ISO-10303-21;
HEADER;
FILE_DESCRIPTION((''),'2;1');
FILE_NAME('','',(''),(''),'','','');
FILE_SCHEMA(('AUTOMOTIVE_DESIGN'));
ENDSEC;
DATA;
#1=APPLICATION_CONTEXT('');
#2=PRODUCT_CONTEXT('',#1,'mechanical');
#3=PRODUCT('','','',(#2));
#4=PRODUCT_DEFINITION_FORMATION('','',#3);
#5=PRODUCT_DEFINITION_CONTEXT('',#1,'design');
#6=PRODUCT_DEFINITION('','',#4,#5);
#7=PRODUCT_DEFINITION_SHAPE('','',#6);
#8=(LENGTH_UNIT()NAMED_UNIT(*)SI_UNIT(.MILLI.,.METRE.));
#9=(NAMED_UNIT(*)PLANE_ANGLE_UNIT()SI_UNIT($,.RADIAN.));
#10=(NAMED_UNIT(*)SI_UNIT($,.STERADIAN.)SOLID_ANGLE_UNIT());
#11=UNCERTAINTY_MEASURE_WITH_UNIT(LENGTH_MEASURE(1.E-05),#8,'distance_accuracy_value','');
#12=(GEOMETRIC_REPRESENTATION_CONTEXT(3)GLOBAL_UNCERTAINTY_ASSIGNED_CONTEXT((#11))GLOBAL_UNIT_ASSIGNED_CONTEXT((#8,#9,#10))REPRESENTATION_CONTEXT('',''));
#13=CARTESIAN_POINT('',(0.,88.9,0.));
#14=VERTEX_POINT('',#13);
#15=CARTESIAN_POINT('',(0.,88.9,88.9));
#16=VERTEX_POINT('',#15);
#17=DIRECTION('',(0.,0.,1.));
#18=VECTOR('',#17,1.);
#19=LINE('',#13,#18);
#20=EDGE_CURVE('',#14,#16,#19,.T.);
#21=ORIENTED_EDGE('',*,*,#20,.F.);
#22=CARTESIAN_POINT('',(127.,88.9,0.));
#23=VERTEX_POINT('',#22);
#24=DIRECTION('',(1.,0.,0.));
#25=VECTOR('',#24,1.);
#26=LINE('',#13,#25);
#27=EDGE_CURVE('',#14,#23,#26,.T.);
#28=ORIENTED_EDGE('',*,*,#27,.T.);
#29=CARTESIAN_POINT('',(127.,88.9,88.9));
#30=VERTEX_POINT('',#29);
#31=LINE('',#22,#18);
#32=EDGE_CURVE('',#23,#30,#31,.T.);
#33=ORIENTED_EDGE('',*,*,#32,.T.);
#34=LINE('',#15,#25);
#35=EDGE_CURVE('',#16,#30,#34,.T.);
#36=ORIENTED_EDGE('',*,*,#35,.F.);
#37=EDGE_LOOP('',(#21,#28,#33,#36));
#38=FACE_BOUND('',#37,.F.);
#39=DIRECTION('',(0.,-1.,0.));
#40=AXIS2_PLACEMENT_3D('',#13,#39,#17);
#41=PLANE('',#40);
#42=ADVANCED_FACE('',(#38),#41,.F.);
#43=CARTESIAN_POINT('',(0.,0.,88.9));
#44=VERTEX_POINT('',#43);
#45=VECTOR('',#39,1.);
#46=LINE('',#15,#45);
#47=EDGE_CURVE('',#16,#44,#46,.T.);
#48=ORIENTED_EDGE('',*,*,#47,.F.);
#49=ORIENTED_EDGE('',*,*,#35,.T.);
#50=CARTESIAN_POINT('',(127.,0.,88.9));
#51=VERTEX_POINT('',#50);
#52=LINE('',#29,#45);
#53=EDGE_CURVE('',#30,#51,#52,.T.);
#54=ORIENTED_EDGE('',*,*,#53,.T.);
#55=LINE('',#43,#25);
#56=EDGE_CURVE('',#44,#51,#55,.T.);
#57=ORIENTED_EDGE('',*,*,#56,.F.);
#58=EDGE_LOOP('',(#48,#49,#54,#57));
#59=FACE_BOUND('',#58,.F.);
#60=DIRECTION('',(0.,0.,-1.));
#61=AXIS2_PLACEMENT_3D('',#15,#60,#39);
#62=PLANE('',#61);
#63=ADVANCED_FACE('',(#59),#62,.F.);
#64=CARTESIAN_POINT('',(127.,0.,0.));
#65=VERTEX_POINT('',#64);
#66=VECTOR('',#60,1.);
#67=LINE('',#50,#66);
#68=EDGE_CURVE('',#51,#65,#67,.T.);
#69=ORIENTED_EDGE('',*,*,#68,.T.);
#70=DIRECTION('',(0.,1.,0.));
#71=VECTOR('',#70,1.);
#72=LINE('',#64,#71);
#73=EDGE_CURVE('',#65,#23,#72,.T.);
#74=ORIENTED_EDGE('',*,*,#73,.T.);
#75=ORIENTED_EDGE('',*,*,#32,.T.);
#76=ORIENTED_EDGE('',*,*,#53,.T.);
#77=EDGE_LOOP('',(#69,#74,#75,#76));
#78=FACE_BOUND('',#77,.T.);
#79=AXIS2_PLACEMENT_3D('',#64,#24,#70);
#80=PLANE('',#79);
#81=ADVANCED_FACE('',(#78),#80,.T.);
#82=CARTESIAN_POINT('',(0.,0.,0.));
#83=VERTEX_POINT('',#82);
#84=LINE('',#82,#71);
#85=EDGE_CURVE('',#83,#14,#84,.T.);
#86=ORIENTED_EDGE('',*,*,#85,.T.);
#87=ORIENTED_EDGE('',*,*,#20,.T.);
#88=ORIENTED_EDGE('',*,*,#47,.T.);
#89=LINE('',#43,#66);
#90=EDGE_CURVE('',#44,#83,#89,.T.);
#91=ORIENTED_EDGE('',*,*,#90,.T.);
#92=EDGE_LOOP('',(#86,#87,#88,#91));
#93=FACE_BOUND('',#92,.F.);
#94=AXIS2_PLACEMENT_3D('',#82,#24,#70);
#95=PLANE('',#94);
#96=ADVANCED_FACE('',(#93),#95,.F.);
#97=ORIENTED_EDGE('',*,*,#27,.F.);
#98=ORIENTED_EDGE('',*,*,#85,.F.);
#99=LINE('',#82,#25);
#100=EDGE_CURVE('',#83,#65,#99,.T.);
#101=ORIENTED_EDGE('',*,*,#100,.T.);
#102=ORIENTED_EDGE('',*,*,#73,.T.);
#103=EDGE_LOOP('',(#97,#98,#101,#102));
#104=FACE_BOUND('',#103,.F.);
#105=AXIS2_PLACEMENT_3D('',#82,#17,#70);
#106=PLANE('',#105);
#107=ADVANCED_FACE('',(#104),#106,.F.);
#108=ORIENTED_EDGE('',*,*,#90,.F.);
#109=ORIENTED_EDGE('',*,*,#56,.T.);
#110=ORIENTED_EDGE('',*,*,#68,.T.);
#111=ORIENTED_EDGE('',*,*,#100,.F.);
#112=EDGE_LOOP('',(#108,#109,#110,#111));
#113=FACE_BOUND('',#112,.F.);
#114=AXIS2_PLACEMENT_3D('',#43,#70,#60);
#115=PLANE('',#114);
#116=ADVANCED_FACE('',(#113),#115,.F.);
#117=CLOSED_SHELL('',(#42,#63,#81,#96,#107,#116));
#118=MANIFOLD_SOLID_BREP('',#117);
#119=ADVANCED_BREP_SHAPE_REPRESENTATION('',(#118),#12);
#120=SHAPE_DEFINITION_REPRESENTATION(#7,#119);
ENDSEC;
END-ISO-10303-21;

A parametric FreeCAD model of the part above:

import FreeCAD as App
import Part
import Sketcher
from FreeCAD import Vector
Q = App.Units.Quantity

doc = App.newDocument("Part")
params = doc.addObject("Spreadsheet::Sheet", "Params")
for row, (alias, value) in enumerate([
    ("sketch1_width", "3.5 in"),
    ("pad1_length", "5 in"),
], start=1):
    params.set(f"A{row}", alias)
    params.set(f"B{row}", "=" + value)
    params.setAlias(f"B{row}", alias)

body = doc.addObject("PartDesign::Body", "Body")

# Sketch on YZ plane
sketch1 = doc.addObject("Sketcher::SketchObject", "Sketch")
body.addObject(sketch1)
sketch1.AttachmentSupport = (doc.YZ_Plane, [""])
sketch1.MapMode = "FlatFace"
sketch1.addGeometry([
    Part.LineSegment(Vector(0, 89, 0), Vector(0, 0, 0)),
    Part.LineSegment(Vector(0, 0, 0), Vector(89, 0, 0)),
    Part.LineSegment(Vector(89, 0, 0), Vector(89, 89, 0)),
    Part.LineSegment(Vector(89, 89, 0), Vector(0, 89, 0)),
], False)
sketch1.addConstraint([
    Sketcher.Constraint("Coincident", 0, 2, 1, 1),
    Sketcher.Constraint("Coincident", 1, 2, 2, 1),
    Sketcher.Constraint("Coincident", 2, 2, 3, 1),
    Sketcher.Constraint("Coincident", 3, 2, 0, 1),
    Sketcher.Constraint("Vertical", 0),
    Sketcher.Constraint("Horizontal", 1),
    Sketcher.Constraint("Vertical", 2),
    Sketcher.Constraint("Horizontal", 3),
    Sketcher.Constraint("Coincident", 0, 2, -1, 1),
    Sketcher.Constraint("Equal", 3, 0),
    Sketcher.Constraint("DistanceX", 1, 1, 1, 2, Q("3.5 in")),
])
sketch1.setExpression("Constraints[10]", "Params.sketch1_width")
pad1 = doc.addObject("PartDesign::Pad", "Pad")
body.addObject(pad1)
pad1.Profile = sketch1
pad1.setExpression("Length", "Params.pad1_length")

doc.recompute()
